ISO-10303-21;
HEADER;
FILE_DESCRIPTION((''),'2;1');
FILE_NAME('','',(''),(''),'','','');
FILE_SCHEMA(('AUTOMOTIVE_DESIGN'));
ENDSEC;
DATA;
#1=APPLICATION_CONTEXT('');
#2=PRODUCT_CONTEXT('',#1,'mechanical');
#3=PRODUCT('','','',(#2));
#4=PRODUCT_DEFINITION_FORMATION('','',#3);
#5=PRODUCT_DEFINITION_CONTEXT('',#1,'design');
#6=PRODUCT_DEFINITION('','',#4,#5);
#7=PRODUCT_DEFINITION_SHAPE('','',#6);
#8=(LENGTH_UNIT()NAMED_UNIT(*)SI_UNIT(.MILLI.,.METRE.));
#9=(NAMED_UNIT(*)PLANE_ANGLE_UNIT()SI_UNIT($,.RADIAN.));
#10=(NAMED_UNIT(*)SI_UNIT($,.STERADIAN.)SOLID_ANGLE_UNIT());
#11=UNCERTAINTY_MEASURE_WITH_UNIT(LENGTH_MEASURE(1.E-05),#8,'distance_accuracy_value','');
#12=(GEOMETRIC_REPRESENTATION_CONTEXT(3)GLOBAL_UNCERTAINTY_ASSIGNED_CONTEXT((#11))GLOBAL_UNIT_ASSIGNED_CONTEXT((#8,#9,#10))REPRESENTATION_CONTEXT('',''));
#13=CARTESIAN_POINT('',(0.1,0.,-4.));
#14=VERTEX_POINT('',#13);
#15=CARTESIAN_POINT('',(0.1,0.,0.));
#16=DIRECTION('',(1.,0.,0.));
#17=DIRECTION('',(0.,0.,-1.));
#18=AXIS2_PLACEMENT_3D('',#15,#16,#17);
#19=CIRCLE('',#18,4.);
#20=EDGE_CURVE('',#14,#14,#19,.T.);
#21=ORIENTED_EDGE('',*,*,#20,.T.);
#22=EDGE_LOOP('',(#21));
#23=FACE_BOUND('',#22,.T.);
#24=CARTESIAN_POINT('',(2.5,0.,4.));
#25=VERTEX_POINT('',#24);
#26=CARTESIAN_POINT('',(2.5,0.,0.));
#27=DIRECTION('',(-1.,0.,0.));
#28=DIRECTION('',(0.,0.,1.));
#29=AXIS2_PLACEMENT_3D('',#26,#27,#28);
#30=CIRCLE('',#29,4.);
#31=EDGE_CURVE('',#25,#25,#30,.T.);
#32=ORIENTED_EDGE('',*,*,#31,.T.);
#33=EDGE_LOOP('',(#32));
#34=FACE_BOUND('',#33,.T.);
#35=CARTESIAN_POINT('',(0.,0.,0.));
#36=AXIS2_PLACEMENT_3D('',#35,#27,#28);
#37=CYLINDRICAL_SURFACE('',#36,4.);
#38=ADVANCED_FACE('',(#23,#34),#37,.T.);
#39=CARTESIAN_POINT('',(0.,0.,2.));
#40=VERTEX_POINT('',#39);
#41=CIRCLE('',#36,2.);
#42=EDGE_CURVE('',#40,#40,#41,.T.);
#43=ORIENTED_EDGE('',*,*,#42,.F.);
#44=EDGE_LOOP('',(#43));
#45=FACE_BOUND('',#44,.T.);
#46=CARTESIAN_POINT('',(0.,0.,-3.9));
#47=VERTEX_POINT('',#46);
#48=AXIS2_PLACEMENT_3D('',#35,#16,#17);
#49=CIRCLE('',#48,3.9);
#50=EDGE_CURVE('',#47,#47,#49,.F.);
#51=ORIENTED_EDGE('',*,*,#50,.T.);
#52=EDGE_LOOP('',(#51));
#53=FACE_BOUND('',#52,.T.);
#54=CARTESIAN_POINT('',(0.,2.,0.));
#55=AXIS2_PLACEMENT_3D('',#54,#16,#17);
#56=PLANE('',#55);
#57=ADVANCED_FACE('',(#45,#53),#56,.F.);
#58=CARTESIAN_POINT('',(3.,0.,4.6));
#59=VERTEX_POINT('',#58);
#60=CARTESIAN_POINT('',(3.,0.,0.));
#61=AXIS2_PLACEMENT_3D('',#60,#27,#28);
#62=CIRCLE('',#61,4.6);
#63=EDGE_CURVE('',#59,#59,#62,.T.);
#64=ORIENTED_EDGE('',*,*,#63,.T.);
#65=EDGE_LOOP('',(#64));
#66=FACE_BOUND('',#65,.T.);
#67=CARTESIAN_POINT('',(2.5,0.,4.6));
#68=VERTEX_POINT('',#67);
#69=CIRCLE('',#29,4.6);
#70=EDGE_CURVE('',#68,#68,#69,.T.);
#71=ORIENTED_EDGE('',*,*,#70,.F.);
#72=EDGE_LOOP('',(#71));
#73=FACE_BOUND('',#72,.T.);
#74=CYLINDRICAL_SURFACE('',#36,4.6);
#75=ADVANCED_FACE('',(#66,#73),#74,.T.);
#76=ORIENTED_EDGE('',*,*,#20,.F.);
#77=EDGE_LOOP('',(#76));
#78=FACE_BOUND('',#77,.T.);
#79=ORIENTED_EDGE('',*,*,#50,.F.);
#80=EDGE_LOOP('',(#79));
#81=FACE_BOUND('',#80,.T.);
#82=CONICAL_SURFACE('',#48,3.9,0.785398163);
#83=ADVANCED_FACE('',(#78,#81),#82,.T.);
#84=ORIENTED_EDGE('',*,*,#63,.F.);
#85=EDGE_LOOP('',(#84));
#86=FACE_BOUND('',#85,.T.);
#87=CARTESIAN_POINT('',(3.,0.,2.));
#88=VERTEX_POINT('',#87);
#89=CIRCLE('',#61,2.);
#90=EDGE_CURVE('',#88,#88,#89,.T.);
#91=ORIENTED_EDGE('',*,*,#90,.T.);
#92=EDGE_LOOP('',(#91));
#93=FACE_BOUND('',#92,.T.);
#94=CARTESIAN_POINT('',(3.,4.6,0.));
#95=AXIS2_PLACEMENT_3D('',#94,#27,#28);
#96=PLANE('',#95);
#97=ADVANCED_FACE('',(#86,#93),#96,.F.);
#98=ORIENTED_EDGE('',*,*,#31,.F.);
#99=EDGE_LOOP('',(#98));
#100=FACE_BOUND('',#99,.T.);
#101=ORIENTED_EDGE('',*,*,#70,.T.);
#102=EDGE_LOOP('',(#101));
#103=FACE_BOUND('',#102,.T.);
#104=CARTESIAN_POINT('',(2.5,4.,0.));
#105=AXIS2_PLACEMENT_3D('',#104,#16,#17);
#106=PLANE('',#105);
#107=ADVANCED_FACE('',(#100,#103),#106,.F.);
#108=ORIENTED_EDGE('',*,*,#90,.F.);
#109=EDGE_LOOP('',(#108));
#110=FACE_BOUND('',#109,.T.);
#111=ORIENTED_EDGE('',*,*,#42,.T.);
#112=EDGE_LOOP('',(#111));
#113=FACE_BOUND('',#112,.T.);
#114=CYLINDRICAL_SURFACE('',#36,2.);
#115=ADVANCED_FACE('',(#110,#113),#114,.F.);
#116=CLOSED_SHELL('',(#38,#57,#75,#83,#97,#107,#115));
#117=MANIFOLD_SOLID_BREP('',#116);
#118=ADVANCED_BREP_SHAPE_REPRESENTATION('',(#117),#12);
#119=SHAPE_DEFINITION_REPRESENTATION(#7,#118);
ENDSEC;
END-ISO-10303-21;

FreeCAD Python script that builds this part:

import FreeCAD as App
import Part
import Sketcher

V = App.Vector
Q = App.Units.Quantity


def edges_at(feature, points):
    """Names of the edges that pass closest to the given points."""
    edges = feature.Shape.Edges
    near = lambda p: min(range(len(edges)), key=lambda i: edges[i].distToShape(Part.Vertex(*p))[0])
    return sorted({f"Edge{near(p) + 1}" for p in points})


def add_polygon(sketch, points):
    """Adds a closed chain of lines whose ends are joined by coincident constraints."""
    first, n = sketch.GeometryCount, len(points)
    for a, b in zip(points, points[1:] + points[:1]):
        sketch.addGeometry(Part.LineSegment(App.Vector(*a, 0), App.Vector(*b, 0)), False)
    for i in range(n):
        sketch.addConstraint(Sketcher.Constraint("Coincident", first + i, 2, first + (i + 1) % n, 1))

doc = App.newDocument("Part")
body = doc.addObject("PartDesign::Body", "Body")

# Sketch on XY plane
sketch1 = doc.addObject("Sketcher::SketchObject", "Sketch")
body.addObject(sketch1)
sketch1.AttachmentSupport = (doc.XY_Plane, [""])
sketch1.MapMode = "FlatFace"
add_polygon(sketch1, [(0, 4), (0, 2), (3, 2), (3, 4.6), (2.5, 4.6), (2.5, 4)])  # lines 0-5
sketch1.addConstraint([
    Sketcher.Constraint("Vertical", 0),
    Sketcher.Constraint("Horizontal", 1),
    Sketcher.Constraint("Vertical", 2),
    Sketcher.Constraint("Horizontal", 3),
    Sketcher.Constraint("Vertical", 4),
    Sketcher.Constraint("Horizontal", 5),
    Sketcher.Constraint("PointOnObject", 0, 2, -2),
    Sketcher.Constraint("DistanceX", 1, 1, 1, 2, Q("3 mm")),
    Sketcher.Constraint("DistanceY", 0, 2, 0, 1, Q("2 mm")),
    Sketcher.Constraint("DistanceX", 3, 2, 3, 1, Q("0.5 mm")),
    Sketcher.Constraint("DistanceY", 2, 1, 2, 2, Q("2.6 mm")),
    Sketcher.Constraint("DistanceY", -1, 1, 0, 2, Q("2 mm")),
])
revolution = doc.addObject("PartDesign::Revolution", "Revolution")
body.addObject(revolution)
revolution.Profile = sketch1
revolution.ReferenceAxis = (sketch1, ["H_Axis"])
revolution.Angle = 360
doc.recompute()

chamfer = doc.addObject("PartDesign::Chamfer", "Chamfer")
body.addObject(chamfer)
chamfer.Base = (revolution, edges_at(revolution, [(0, -4, 0)]))
chamfer.Size = 0.1

doc.recompute()
